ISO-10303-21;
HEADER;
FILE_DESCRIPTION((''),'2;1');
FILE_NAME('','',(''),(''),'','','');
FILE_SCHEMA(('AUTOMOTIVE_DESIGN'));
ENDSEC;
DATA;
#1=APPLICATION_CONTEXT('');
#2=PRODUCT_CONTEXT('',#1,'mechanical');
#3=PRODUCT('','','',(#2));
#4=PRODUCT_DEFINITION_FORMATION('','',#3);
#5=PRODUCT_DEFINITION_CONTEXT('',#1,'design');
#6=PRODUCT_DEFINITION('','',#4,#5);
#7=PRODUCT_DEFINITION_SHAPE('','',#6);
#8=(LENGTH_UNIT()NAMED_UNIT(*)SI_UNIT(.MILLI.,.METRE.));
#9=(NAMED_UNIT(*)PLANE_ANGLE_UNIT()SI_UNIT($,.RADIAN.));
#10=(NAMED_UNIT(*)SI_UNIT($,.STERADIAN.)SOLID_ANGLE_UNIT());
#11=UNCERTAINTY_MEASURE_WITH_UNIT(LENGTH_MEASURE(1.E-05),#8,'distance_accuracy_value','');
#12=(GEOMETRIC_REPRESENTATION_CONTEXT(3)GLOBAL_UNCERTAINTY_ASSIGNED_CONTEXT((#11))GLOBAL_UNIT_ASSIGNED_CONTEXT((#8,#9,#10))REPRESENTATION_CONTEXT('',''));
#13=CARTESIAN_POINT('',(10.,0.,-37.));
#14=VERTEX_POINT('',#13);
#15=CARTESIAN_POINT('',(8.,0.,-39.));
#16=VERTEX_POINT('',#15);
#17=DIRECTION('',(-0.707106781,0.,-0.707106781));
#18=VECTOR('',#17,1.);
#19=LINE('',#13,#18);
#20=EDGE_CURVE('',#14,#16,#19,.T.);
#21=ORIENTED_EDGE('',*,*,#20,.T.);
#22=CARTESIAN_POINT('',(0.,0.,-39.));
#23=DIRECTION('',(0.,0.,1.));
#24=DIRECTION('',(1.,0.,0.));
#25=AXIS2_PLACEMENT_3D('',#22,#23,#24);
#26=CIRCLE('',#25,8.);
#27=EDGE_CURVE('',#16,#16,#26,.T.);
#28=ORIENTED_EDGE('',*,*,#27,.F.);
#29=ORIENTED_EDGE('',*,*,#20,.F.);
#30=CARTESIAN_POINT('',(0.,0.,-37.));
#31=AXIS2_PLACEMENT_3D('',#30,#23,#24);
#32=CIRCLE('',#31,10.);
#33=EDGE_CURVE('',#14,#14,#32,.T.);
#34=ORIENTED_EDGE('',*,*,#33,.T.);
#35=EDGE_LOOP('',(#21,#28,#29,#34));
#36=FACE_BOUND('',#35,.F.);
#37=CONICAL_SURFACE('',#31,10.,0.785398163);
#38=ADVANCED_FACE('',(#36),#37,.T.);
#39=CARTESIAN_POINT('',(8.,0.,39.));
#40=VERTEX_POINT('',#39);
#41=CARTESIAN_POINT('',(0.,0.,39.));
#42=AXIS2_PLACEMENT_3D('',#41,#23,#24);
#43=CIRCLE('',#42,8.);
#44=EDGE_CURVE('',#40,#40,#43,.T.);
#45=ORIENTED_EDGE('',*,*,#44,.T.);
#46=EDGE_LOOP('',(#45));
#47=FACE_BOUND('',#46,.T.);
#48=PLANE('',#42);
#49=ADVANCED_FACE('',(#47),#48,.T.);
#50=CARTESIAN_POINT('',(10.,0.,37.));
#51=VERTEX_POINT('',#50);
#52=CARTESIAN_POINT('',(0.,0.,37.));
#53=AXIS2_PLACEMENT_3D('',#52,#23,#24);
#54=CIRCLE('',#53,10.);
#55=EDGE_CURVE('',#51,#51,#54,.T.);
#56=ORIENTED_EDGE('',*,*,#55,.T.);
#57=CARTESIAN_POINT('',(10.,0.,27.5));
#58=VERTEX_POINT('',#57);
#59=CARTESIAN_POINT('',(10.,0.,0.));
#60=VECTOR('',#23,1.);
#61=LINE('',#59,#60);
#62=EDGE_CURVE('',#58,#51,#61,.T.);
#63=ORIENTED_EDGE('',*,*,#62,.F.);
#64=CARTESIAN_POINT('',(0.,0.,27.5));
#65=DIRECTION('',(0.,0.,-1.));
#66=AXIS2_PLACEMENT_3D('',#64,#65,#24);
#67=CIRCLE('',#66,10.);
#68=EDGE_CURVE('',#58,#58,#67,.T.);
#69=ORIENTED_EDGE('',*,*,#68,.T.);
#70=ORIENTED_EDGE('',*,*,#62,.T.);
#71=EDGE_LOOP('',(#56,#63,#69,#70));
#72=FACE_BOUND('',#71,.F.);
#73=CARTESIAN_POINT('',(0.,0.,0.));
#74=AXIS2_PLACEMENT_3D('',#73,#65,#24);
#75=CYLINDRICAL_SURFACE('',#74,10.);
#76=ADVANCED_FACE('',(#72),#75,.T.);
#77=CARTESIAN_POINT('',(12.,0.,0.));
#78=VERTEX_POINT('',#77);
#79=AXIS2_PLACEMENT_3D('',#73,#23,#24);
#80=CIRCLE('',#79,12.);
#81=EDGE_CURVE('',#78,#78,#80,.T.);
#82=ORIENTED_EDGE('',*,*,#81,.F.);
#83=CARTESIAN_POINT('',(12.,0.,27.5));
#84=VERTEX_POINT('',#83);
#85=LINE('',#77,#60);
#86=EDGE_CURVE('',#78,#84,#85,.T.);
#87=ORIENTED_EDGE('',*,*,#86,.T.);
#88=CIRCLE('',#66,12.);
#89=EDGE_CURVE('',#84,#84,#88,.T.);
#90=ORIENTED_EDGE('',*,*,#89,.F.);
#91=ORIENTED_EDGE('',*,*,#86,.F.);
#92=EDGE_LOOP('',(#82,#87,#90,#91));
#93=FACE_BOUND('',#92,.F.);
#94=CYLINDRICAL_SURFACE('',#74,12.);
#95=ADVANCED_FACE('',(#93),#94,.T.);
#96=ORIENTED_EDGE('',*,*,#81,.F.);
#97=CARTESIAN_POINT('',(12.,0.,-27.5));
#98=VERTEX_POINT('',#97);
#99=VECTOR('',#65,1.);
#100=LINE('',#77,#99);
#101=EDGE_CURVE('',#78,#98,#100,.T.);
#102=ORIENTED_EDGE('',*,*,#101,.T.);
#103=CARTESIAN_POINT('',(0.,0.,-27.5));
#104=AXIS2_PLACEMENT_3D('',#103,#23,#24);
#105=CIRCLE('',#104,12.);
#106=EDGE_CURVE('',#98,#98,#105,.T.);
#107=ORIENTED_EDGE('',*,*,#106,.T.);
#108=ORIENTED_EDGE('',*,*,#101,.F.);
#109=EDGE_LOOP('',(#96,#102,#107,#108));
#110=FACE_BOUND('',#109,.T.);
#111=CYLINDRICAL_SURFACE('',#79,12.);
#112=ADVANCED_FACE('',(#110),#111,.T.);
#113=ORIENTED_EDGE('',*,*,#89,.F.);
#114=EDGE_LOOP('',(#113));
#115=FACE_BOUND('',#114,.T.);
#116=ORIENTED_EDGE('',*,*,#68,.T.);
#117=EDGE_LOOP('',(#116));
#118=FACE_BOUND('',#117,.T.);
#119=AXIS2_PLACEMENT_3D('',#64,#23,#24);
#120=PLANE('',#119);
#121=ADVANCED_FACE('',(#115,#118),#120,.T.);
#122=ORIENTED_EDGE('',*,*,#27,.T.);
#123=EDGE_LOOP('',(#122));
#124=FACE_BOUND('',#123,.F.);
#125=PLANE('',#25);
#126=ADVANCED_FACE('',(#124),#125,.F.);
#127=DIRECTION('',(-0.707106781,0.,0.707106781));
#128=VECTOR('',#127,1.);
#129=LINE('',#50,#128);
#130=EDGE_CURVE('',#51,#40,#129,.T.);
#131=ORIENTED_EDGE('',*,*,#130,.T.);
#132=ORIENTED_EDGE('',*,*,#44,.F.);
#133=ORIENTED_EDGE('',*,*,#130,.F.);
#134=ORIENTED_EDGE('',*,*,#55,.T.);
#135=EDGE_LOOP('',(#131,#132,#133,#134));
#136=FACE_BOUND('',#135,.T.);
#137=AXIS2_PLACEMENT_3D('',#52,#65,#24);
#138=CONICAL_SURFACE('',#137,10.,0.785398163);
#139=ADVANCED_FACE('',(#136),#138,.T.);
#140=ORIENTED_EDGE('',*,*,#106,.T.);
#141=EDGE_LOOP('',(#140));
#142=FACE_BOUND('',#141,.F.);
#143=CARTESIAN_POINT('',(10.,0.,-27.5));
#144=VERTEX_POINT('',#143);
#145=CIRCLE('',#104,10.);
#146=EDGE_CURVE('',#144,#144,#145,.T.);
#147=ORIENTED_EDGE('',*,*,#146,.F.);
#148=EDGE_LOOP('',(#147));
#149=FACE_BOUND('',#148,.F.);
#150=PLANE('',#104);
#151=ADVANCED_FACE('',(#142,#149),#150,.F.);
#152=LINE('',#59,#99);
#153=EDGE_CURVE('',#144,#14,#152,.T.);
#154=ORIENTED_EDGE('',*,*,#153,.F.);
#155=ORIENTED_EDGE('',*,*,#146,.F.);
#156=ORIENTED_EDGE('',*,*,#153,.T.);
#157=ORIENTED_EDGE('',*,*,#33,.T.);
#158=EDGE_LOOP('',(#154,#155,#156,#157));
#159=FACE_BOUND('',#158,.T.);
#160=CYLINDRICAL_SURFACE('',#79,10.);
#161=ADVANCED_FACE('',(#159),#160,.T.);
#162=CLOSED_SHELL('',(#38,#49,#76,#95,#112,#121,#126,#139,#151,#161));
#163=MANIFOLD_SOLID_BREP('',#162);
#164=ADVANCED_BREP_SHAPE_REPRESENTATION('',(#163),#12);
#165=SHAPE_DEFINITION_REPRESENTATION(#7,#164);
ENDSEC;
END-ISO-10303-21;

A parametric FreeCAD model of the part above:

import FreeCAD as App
import Part
import Sketcher


def edges_at(feature, points):
    """Names of the edges that pass closest to the given points."""
    edges = feature.Shape.Edges
    near = lambda p: min(range(len(edges)), key=lambda i: edges[i].distToShape(Part.Vertex(*p))[0])
    return sorted({f"Edge{near(p) + 1}" for p in points})

doc = App.newDocument("Part")
body = doc.addObject("PartDesign::Body", "Body")

# Sketch on XY plane
sketch1 = body.newObject("Sketcher::SketchObject", "Sketch")
sketch1.AttachmentSupport = (doc.getObject("XY_Plane"), [""])
sketch1.MapMode = "FlatFace"
sketch1.addGeometry(Part.Circle(App.Vector(0, 0, 0), App.Vector(0, 0, 1), 12), False)
sketch1.addConstraint(Sketcher.Constraint("Coincident", 0, 3, -1, 1))
sketch1.addConstraint(Sketcher.Constraint("Diameter", 0, 24.0))
pad1 = body.newObject("PartDesign::Pad", "Pad")
pad1.Profile = sketch1
pad1.Length = 55
pad1.Midplane = True

# Sketch on XY plane
sketch2 = body.newObject("Sketcher::SketchObject", "Sketch001")
sketch2.AttachmentSupport = (doc.getObject("XY_Plane"), [""])
sketch2.MapMode = "FlatFace"
sketch2.addGeometry(Part.Circle(App.Vector(0, 0, 0), App.Vector(0, 0, 1), 10), False)
sketch2.addConstraint(Sketcher.Constraint("Coincident", 0, 3, -1, 1))
sketch2.addConstraint(Sketcher.Constraint("Diameter", 0, 20.0))
pad2 = body.newObject("PartDesign::Pad", "Pad001")
pad2.Profile = sketch2
pad2.Length = 78
pad2.Midplane = True
doc.recompute()

chamfer = body.newObject("PartDesign::Chamfer", "Chamfer")
chamfer.Base = (pad2, edges_at(pad2, [(-10, 0, 39), (-10, 0, -39)]))
chamfer.Size = 2

doc.recompute()
